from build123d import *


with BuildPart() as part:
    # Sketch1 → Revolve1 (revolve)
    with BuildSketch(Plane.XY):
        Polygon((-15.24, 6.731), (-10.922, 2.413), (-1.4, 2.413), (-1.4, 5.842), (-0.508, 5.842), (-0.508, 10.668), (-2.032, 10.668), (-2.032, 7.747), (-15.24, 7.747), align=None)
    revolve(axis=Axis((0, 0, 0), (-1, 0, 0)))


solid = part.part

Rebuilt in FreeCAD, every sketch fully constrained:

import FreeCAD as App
import Part
import Sketcher
Q = App.Units.Quantity

doc = App.newDocument("Part")
params = doc.addObject("Spreadsheet::Sheet", "Params")
for row, (alias, value) in enumerate([
    ("sketch1_width", "0.06 in"),
    ("sketch1_width2", "0.52 in"),
    ("sketch1_height", "0.19 in"),
    ("sketch1_height2", "0.04 in"),
    ("sketch1_height3", "0.135 in"),
    ("revolution_angle", "360 deg"),
], start=1):
    params.set(f"A{row}", alias)
    params.set(f"B{row}", "=" + value)
    params.setAlias(f"B{row}", alias)

body = doc.addObject("PartDesign::Body", "Body")

sketch1 = doc.addObject("Sketcher::SketchObject", "Sketch")
body.addObject(sketch1)
sketch1.AttachmentSupport = (doc.XY_Plane, [""])
sketch1.MapMode = "FlatFace"
sketch1.addGeometry([
    Part.LineSegment(App.Vector(-15.2, 6.7, 0), App.Vector(-10.9, 2.4, 0)),
    Part.LineSegment(App.Vector(-10.9, 2.4, 0), App.Vector(-1.4, 2.4, 0)),
    Part.LineSegment(App.Vector(-1.4, 2.4, 0), App.Vector(-1.4, 5.8, 0)),
    Part.LineSegment(App.Vector(-1.4, 5.8, 0), App.Vector(-0.5, 5.8, 0)),
    Part.LineSegment(App.Vector(-0.5, 5.8, 0), App.Vector(-0.5, 10.7, 0)),
    Part.LineSegment(App.Vector(-0.5, 10.7, 0), App.Vector(-2, 10.7, 0)),
    Part.LineSegment(App.Vector(-2, 10.7, 0), App.Vector(-2, 7.7, 0)),
    Part.LineSegment(App.Vector(-2, 7.7, 0), App.Vector(-15.2, 7.7, 0)),
    Part.LineSegment(App.Vector(-15.2, 7.7, 0), App.Vector(-15.2, 6.7, 0)),
], False)
sketch1.addConstraint([
    Sketcher.Constraint("Coincident", 0, 2, 1, 1),
    Sketcher.Constraint("Coincident", 1, 2, 2, 1),
    Sketcher.Constraint("Coincident", 2, 2, 3, 1),
    Sketcher.Constraint("Coincident", 3, 2, 4, 1),
    Sketcher.Constraint("Coincident", 4, 2, 5, 1),
    Sketcher.Constraint("Coincident", 5, 2, 6, 1),
    Sketcher.Constraint("Coincident", 6, 2, 7, 1),
    Sketcher.Constraint("Coincident", 7, 2, 8, 1),
    Sketcher.Constraint("Coincident", 8, 2, 0, 1),
    Sketcher.Constraint("Horizontal", 1),
    Sketcher.Constraint("Vertical", 2),
    Sketcher.Constraint("Horizontal", 3),
    Sketcher.Constraint("Vertical", 4),
    Sketcher.Constraint("Horizontal", 5),
    Sketcher.Constraint("Vertical", 6),
    Sketcher.Constraint("Horizontal", 7),
    Sketcher.Constraint("Vertical", 8),
    Sketcher.Constraint("Angle", 0, Q("-45 deg")),
    Sketcher.Constraint("DistanceX", 5, 2, 5, 1, Q("0.06 in")),
    Sketcher.Constraint("DistanceX", 7, 2, 7, 1, Q("0.52 in")),
    Sketcher.Constraint("DistanceY", 4, 1, 4, 2, Q("0.19 in")),
    Sketcher.Constraint("DistanceY", 8, 2, 8, 1, Q("0.04 in")),
    Sketcher.Constraint("DistanceX", 7, 2, -1, 1, Q("0.6 in")),
    Sketcher.Constraint("DistanceY", 2, 1, 2, 2, Q("0.135 in")),
    Sketcher.Constraint("DistanceY", 6, 2, 6, 1, Q("0.115 in")),
    Sketcher.Constraint("DistanceY", -1, 1, 2, 2, Q("0.23 in")),
    Sketcher.Constraint("DistanceX", 1, 1, 1, 2, 9.522),
])
sketch1.setExpression("Constraints[18]", "Params.sketch1_width")
sketch1.setExpression("Constraints[19]", "Params.sketch1_width2")
sketch1.setExpression("Constraints[20]", "Params.sketch1_height")
sketch1.setExpression("Constraints[21]", "Params.sketch1_height2")
sketch1.setExpression("Constraints[23]", "Params.sketch1_height3")
revolution = doc.addObject("PartDesign::Revolution", "Revolution")
body.addObject(revolution)
revolution.Profile = sketch1
revolution.ReferenceAxis = (sketch1, ["H_Axis"])
revolution.setExpression("Angle", "Params.revolution_angle")

doc.recompute()
